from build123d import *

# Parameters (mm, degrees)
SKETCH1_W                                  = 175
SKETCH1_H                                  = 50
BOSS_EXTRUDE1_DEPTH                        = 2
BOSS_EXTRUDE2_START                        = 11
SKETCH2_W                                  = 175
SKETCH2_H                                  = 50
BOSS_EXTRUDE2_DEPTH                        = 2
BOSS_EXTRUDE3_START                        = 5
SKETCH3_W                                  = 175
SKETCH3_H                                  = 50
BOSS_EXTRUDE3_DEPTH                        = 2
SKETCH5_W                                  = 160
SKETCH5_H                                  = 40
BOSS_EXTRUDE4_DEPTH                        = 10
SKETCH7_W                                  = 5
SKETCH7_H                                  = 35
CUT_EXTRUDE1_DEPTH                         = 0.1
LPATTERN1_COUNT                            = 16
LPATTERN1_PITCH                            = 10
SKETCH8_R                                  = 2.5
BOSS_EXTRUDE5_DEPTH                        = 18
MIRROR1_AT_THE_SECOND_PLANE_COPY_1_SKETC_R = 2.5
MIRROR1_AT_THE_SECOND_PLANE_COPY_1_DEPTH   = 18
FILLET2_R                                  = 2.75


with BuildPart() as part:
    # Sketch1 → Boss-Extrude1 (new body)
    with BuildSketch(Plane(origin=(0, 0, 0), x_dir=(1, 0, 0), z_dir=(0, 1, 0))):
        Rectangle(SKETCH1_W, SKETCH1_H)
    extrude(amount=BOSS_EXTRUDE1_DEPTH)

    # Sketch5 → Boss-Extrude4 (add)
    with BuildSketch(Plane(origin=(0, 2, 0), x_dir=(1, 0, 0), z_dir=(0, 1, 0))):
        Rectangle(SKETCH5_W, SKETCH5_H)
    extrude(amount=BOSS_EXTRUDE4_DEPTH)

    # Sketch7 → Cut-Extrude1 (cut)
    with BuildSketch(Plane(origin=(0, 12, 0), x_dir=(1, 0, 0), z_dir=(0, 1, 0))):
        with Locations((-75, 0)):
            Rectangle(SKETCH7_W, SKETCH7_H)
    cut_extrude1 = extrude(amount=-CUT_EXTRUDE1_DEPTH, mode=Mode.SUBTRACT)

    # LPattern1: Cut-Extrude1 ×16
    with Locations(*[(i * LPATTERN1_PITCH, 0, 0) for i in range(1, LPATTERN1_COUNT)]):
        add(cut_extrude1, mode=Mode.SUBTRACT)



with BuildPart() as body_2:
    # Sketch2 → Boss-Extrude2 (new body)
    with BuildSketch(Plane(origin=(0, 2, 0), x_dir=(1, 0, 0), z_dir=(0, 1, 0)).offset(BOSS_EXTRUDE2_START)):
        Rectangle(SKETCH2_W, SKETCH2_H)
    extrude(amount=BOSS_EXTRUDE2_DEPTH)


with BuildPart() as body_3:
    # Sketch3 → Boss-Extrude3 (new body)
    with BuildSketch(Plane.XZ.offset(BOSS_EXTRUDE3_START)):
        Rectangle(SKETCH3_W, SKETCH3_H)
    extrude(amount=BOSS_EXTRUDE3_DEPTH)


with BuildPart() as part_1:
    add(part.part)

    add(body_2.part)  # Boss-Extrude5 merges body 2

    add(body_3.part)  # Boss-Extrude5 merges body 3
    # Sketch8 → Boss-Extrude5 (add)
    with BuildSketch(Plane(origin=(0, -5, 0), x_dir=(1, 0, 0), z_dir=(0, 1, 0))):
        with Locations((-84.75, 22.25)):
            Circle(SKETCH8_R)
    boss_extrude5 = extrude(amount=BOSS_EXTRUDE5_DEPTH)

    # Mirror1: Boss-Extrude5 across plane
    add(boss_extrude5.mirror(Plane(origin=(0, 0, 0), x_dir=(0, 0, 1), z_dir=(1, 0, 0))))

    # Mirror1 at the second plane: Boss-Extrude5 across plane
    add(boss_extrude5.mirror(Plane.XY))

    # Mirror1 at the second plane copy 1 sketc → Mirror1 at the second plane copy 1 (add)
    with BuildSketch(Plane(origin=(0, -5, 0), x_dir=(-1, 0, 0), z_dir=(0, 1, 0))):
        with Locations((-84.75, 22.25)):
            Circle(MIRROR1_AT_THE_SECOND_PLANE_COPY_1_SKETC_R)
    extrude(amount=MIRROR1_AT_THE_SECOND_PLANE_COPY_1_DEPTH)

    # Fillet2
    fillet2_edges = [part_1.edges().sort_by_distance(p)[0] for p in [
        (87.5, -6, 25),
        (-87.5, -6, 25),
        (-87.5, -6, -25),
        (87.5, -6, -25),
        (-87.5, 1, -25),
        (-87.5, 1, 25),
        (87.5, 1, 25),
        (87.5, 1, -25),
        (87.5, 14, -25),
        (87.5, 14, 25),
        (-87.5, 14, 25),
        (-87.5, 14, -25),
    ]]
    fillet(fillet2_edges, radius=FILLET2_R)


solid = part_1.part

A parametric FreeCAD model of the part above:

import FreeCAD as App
import Part
import Sketcher
Q = App.Units.Quantity


def edges_at(feature, points):
    """Names of the edges that pass closest to the given points."""
    edges = feature.Shape.Edges
    near = lambda p: min(range(len(edges)), key=lambda i: edges[i].distToShape(Part.Vertex(*p))[0])
    return sorted({f"Edge{near(p) + 1}" for p in points})

doc = App.newDocument("Part")
body = doc.addObject("PartDesign::Body", "Body")

# Sketch on XZ plane
sketch1 = body.newObject("Sketcher::SketchObject", "Sketch")
sketch1.AttachmentSupport = (doc.getObject("XZ_Plane"), [""])
sketch1.MapMode = "FlatFace"
sketch1.addGeometry(Part.LineSegment(App.Vector(-87.5, -25, 0), App.Vector(-87.5, 25, 0)), False)
sketch1.addGeometry(Part.LineSegment(App.Vector(-87.5, 25, 0), App.Vector(87.5, 25, 0)), False)
sketch1.addGeometry(Part.LineSegment(App.Vector(87.5, 25, 0), App.Vector(87.5, -25, 0)), False)
sketch1.addGeometry(Part.LineSegment(App.Vector(87.5, -25, 0), App.Vector(-87.5, -25, 0)), False)
sketch1.addConstraint(Sketcher.Constraint("Coincident", 0, 2, 1, 1))
sketch1.addConstraint(Sketcher.Constraint("Coincident", 1, 2, 2, 1))
sketch1.addConstraint(Sketcher.Constraint("Coincident", 2, 2, 3, 1))
sketch1.addConstraint(Sketcher.Constraint("Coincident", 3, 2, 0, 1))
sketch1.addConstraint(Sketcher.Constraint("Vertical", 0))
sketch1.addConstraint(Sketcher.Constraint("Horizontal", 1))
sketch1.addConstraint(Sketcher.Constraint("Vertical", 2))
sketch1.addConstraint(Sketcher.Constraint("Horizontal", 3))
sketch1.addConstraint(Sketcher.Constraint("Symmetric", 0, 2, 2, 2, -1, 1))
sketch1.addConstraint(Sketcher.Constraint("DistanceX", 1, 1, 1, 2, Q("175 mm")))
sketch1.addConstraint(Sketcher.Constraint("DistanceY", 0, 1, 0, 2, Q("50 mm")))
pad1 = body.newObject("PartDesign::Pad", "Pad")
pad1.Profile = sketch1
pad1.Length = 2
pad1.Reversed = True

# Sketch on XZ plane
sketch2 = body.newObject("Sketcher::SketchObject", "Sketch001")
sketch2.AttachmentSupport = (doc.getObject("XZ_Plane"), [""])
sketch2.MapMode = "FlatFace"
sketch2.AttachmentOffset = App.Placement(App.Vector(0, 0, -2), App.Rotation())
sketch2.addGeometry(Part.LineSegment(App.Vector(-80, -20, 0), App.Vector(-80, 20, 0)), False)
sketch2.addGeometry(Part.LineSegment(App.Vector(-80, 20, 0), App.Vector(80, 20, 0)), False)
sketch2.addGeometry(Part.LineSegment(App.Vector(80, 20, 0), App.Vector(80, -20, 0)), False)
sketch2.addGeometry(Part.LineSegment(App.Vector(80, -20, 0), App.Vector(-80, -20, 0)), False)
sketch2.addConstraint(Sketcher.Constraint("Coincident", 0, 2, 1, 1))
sketch2.addConstraint(Sketcher.Constraint("Coincident", 1, 2, 2, 1))
sketch2.addConstraint(Sketcher.Constraint("Coincident", 2, 2, 3, 1))
sketch2.addConstraint(Sketcher.Constraint("Coincident", 3, 2, 0, 1))
sketch2.addConstraint(Sketcher.Constraint("Vertical", 0))
sketch2.addConstraint(Sketcher.Constraint("Horizontal", 1))
sketch2.addConstraint(Sketcher.Constraint("Vertical", 2))
sketch2.addConstraint(Sketcher.Constraint("Horizontal", 3))
sketch2.addConstraint(Sketcher.Constraint("Symmetric", 0, 2, 2, 2, -1, 1))
sketch2.addConstraint(Sketcher.Constraint("DistanceX", 1, 1, 1, 2, Q("160 mm")))
sketch2.addConstraint(Sketcher.Constraint("DistanceY", 0, 1, 0, 2, Q("40 mm")))
pad2 = body.newObject("PartDesign::Pad", "Pad001")
pad2.Profile = sketch2
pad2.Length = 10
pad2.Reversed = True

# Sketch on XZ plane
sketch3 = body.newObject("Sketcher::SketchObject", "Sketch002")
sketch3.AttachmentSupport = (doc.getObject("XZ_Plane"), [""])
sketch3.MapMode = "FlatFace"
sketch3.AttachmentOffset = App.Placement(App.Vector(0, 0, -12), App.Rotation())
sketch3.addGeometry(Part.LineSegment(App.Vector(-77.5, -17.5, 0), App.Vector(-77.5, 17.5, 0)), False)
sketch3.addGeometry(Part.LineSegment(App.Vector(-77.5, 17.5, 0), App.Vector(-72.5, 17.5, 0)), False)
sketch3.addGeometry(Part.LineSegment(App.Vector(-72.5, 17.5, 0), App.Vector(-72.5, -17.5, 0)), False)
sketch3.addGeometry(Part.LineSegment(App.Vector(-72.5, -17.5, 0), App.Vector(-77.5, -17.5, 0)), False)
sketch3.addConstraint(Sketcher.Constraint("Coincident", 0, 2, 1, 1))
sketch3.addConstraint(Sketcher.Constraint("Coincident", 1, 2, 2, 1))
sketch3.addConstraint(Sketcher.Constraint("Coincident", 2, 2, 3, 1))
sketch3.addConstraint(Sketcher.Constraint("Coincident", 3, 2, 0, 1))
sketch3.addConstraint(Sketcher.Constraint("Vertical", 0))
sketch3.addConstraint(Sketcher.Constraint("Horizontal", 1))
sketch3.addConstraint(Sketcher.Constraint("Vertical", 2))
sketch3.addConstraint(Sketcher.Constraint("Horizontal", 3))
sketch3.addConstraint(Sketcher.Constraint("DistanceX", 1, 1, 1, 2, Q("5 mm")))
sketch3.addConstraint(Sketcher.Constraint("DistanceY", 0, 1, 0, 2, Q("35 mm")))
sketch3.addConstraint(Sketcher.Constraint("DistanceX", 0, 2, -1, 1, Q("77.5 mm")))
sketch3.addConstraint(Sketcher.Constraint("DistanceY", -1, 1, 0, 2, Q("17.5 mm")))
pocket1 = body.newObject("PartDesign::Pocket", "Pocket")
pocket1.Profile = sketch3
pocket1.Length = 0.1
pocket1.Reversed = True
doc.recompute()

linearpattern = body.newObject("PartDesign::LinearPattern", "LinearPattern")
linearpattern.Originals = [pocket1]
linearpattern.Direction = (doc.getObject("X_Axis"), [""])
linearpattern.Mode = "offset"
linearpattern.Offset = 10
linearpattern.Occurrences = 16
body.Tip = linearpattern
body2 = doc.addObject("PartDesign::Body", "Body001")

# Sketch on XZ plane
sketch4 = body2.newObject("Sketcher::SketchObject", "Sketch003")
sketch4.AttachmentSupport = (doc.getObject("XZ_Plane001"), [""])
sketch4.MapMode = "FlatFace"
sketch4.AttachmentOffset = App.Placement(App.Vector(0, 0, -13), App.Rotation())
sketch4.addGeometry(Part.LineSegment(App.Vector(-87.5, -25, 0), App.Vector(-87.5, 25, 0)), False)
sketch4.addGeometry(Part.LineSegment(App.Vector(-87.5, 25, 0), App.Vector(87.5, 25, 0)), False)
sketch4.addGeometry(Part.LineSegment(App.Vector(87.5, 25, 0), App.Vector(87.5, -25, 0)), False)
sketch4.addGeometry(Part.LineSegment(App.Vector(87.5, -25, 0), App.Vector(-87.5, -25, 0)), False)
sketch4.addConstraint(Sketcher.Constraint("Coincident", 0, 2, 1, 1))
sketch4.addConstraint(Sketcher.Constraint("Coincident", 1, 2, 2, 1))
sketch4.addConstraint(Sketcher.Constraint("Coincident", 2, 2, 3, 1))
sketch4.addConstraint(Sketcher.Constraint("Coincident", 3, 2, 0, 1))
sketch4.addConstraint(Sketcher.Constraint("Vertical", 0))
sketch4.addConstraint(Sketcher.Constraint("Horizontal", 1))
sketch4.addConstraint(Sketcher.Constraint("Vertical", 2))
sketch4.addConstraint(Sketcher.Constraint("Horizontal", 3))
sketch4.addConstraint(Sketcher.Constraint("Symmetric", 0, 2, 2, 2, -1, 1))
sketch4.addConstraint(Sketcher.Constraint("DistanceX", 1, 1, 1, 2, Q("175 mm")))
sketch4.addConstraint(Sketcher.Constraint("DistanceY", 0, 1, 0, 2, Q("50 mm")))
pad3 = body2.newObject("PartDesign::Pad", "Pad002")
pad3.Profile = sketch4
pad3.Length = 2
pad3.Reversed = True
body3 = doc.addObject("PartDesign::Body", "Body002")

# Sketch on XZ plane
sketch5 = body3.newObject("Sketcher::SketchObject", "Sketch004")
sketch5.AttachmentSupport = (doc.getObject("XZ_Plane002"), [""])
sketch5.MapMode = "FlatFace"
sketch5.AttachmentOffset = App.Placement(App.Vector(0, 0, 5), App.Rotation())
sketch5.addGeometry(Part.LineSegment(App.Vector(-87.5, 25, 0), App.Vector(-87.5, -25, 0)), False)
sketch5.addGeometry(Part.LineSegment(App.Vector(-87.5, -25, 0), App.Vector(87.5, -25, 0)), False)
sketch5.addGeometry(Part.LineSegment(App.Vector(87.5, -25, 0), App.Vector(87.5, 25, 0)), False)
sketch5.addGeometry(Part.LineSegment(App.Vector(87.5, 25, 0), App.Vector(-87.5, 25, 0)), False)
sketch5.addConstraint(Sketcher.Constraint("Coincident", 0, 2, 1, 1))
sketch5.addConstraint(Sketcher.Constraint("Coincident", 1, 2, 2, 1))
sketch5.addConstraint(Sketcher.Constraint("Coincident", 2, 2, 3, 1))
sketch5.addConstraint(Sketcher.Constraint("Coincident", 3, 2, 0, 1))
sketch5.addConstraint(Sketcher.Constraint("Vertical", 0))
sketch5.addConstraint(Sketcher.Constraint("Horizontal", 1))
sketch5.addConstraint(Sketcher.Constraint("Vertical", 2))
sketch5.addConstraint(Sketcher.Constraint("Horizontal", 3))
sketch5.addConstraint(Sketcher.Constraint("Symmetric", 0, 2, 2, 2, -1, 1))
sketch5.addConstraint(Sketcher.Constraint("DistanceX", 1, 1, 1, 2, Q("175 mm")))
sketch5.addConstraint(Sketcher.Constraint("DistanceY", 0, 2, 0, 1, Q("50 mm")))
pad4 = body3.newObject("PartDesign::Pad", "Pad003")
pad4.Profile = sketch5
pad4.Length = 2
body.AllowCompound = True
doc.recompute()

boolean = body.newObject("PartDesign::Boolean", "Boolean")
boolean.Type = "Fuse"
boolean.addObjects([body2])
doc.recompute()

boolean2 = body.newObject("PartDesign::Boolean", "Boolean001")
boolean2.Type = "Fuse"
boolean2.addObjects([body3])

# Sketch on XZ plane
sketch6 = body.newObject("Sketcher::SketchObject", "Sketch005")
sketch6.AttachmentSupport = (doc.getObject("XZ_Plane"), [""])
sketch6.MapMode = "FlatFace"
sketch6.AttachmentOffset = App.Placement(App.Vector(0, 0, 5), App.Rotation())
sketch6.addGeometry(Part.Circle(App.Vector(-84.75, -22.25, 0), App.Vector(0, 0, 1), 2.5), False)
sketch6.addConstraint(Sketcher.Constraint("Diameter", 0, Q("5 mm")))
sketch6.addConstraint(Sketcher.Constraint("DistanceX", 0, 3, -1, 1, Q("84.75 mm")))
sketch6.addConstraint(Sketcher.Constraint("DistanceY", 0, 3, -1, 1, Q("22.25 mm")))
pad5 = body.newObject("PartDesign::Pad", "Pad004")
pad5.Profile = sketch6
pad5.Length = 18
pad5.Reversed = True
doc.recompute()

mirrored = body.newObject("PartDesign::Mirrored", "Mirrored")
mirrored.Originals = [pad5]
mirrored.MirrorPlane = (doc.getObject("YZ_Plane"), [""])
body.Tip = mirrored
doc.recompute()

mirrored2 = body.newObject("PartDesign::Mirrored", "Mirrored001")
mirrored2.Originals = [pad5]
mirrored2.MirrorPlane = (doc.getObject("XY_Plane"), [""])
body.Tip = mirrored2

# Sketch on XZ plane
sketch7 = body.newObject("Sketcher::SketchObject", "Sketch006")
sketch7.AttachmentSupport = (doc.getObject("XZ_Plane"), [""])
sketch7.MapMode = "FlatFace"
sketch7.AttachmentOffset = App.Placement(App.Vector(0, 0, 5), App.Rotation())
sketch7.addGeometry(Part.Circle(App.Vector(84.75, 22.25, 0), App.Vector(0, 0, 1), 2.5), False)
sketch7.addConstraint(Sketcher.Constraint("Diameter", 0, Q("5 mm")))
sketch7.addConstraint(Sketcher.Constraint("DistanceX", -1, 1, 0, 3, Q("84.75 mm")))
sketch7.addConstraint(Sketcher.Constraint("DistanceY", -1, 1, 0, 3, Q("22.25 mm")))
pad6 = body.newObject("PartDesign::Pad", "Pad005")
pad6.Profile = sketch7
pad6.Length = 18
pad6.Reversed = True
doc.recompute()

fillet = body.newObject("PartDesign::Fillet", "Fillet")
fillet.Base = (pad6, edges_at(pad6, [
    (87.5, -6, 25),
    (-87.5, -6, 25),
    (-87.5, -6, -25),
    (87.5, -6, -25),
    (-87.5, 1, -25),
    (-87.5, 1, 25),
    (87.5, 1, 25),
    (87.5, 1, -25),
    (87.5, 14, -25),
    (87.5, 14, 25),
    (-87.5, 14, 25),
    (-87.5, 14, -25),
]))
fillet.Radius = 2.75

doc.recompute()
